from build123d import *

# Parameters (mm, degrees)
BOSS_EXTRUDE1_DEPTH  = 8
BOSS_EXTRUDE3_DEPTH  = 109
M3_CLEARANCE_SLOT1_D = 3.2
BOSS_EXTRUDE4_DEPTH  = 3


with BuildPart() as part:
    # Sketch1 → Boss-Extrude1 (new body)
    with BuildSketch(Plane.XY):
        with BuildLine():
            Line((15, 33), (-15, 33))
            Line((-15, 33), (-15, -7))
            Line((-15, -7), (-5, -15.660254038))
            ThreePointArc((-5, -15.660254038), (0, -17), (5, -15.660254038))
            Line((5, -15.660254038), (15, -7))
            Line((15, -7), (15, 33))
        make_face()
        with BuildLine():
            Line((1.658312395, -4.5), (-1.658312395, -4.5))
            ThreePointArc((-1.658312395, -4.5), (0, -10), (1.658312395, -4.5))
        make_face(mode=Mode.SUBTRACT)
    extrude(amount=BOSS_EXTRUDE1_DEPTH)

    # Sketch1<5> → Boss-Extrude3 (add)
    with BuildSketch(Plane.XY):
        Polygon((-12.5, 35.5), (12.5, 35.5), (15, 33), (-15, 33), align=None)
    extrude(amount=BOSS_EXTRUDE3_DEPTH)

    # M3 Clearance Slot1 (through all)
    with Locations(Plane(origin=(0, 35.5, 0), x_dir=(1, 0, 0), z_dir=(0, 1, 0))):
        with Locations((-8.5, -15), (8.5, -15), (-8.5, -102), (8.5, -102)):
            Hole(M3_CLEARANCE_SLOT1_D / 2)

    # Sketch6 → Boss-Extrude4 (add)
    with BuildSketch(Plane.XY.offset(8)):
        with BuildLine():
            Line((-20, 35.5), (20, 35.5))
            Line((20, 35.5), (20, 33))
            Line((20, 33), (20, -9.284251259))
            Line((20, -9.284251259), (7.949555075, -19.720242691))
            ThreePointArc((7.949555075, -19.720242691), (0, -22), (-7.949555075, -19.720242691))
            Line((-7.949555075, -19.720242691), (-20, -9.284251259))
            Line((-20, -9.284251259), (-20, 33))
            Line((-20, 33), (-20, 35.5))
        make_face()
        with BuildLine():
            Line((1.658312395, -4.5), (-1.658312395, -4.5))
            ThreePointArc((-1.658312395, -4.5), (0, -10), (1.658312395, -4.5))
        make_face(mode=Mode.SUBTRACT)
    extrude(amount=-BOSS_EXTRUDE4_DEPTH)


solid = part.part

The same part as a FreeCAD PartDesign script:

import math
import FreeCAD as App
import Part
import Sketcher


def add_polygon(sketch, points):
    """Adds a closed chain of lines whose ends are joined by coincident constraints."""
    first, n = sketch.GeometryCount, len(points)
    for a, b in zip(points, points[1:] + points[:1]):
        sketch.addGeometry(Part.LineSegment(App.Vector(*a, 0), App.Vector(*b, 0)), False)
    for i in range(n):
        sketch.addConstraint(Sketcher.Constraint("Coincident", first + i, 2, first + (i + 1) % n, 1))

doc = App.newDocument("Part")
body = doc.addObject("PartDesign::Body", "Body")

sketch1 = body.newObject("Sketcher::SketchObject", "Sketch")
sketch1.AttachmentSupport = (doc.getObject("XY_Plane"), [""])
sketch1.MapMode = "FlatFace"
sketch1.addGeometry([
    Part.LineSegment(App.Vector(15, 33, 0), App.Vector(-15, 33, 0)),
    Part.LineSegment(App.Vector(-15, 33, 0), App.Vector(-15, -7, 0)),
    Part.LineSegment(App.Vector(-15, -7, 0), App.Vector(-5, -15.7, 0)),
    Part.ArcOfCircle(Part.Circle(App.Vector(0, -7, 0), App.Vector(0, 0, 1), 10), math.radians(-120), math.radians(-60)),
    Part.LineSegment(App.Vector(5, -15.7, 0), App.Vector(15, -7, 0)),
    Part.LineSegment(App.Vector(15, -7, 0), App.Vector(15, 33, 0)),
    Part.LineSegment(App.Vector(-1.7, -4.5, 0), App.Vector(1.7, -4.5, 0)),
    Part.ArcOfCircle(Part.Circle(App.Vector(0, -7, 0), App.Vector(0, 0, 1), 3), math.radians(124), math.radians(416)),
], False)
sketch1.addConstraint([
    Sketcher.Constraint("Coincident", 0, 2, 1, 1),
    Sketcher.Constraint("Coincident", 1, 2, 2, 1),
    Sketcher.Constraint("Coincident", 2, 2, 3, 1),
    Sketcher.Constraint("Coincident", 3, 2, 4, 1),
    Sketcher.Constraint("Coincident", 4, 2, 5, 1),
    Sketcher.Constraint("Coincident", 5, 2, 0, 1),
    Sketcher.Constraint("Coincident", 6, 1, 7, 1),
    Sketcher.Constraint("Coincident", 7, 2, 6, 2),
    Sketcher.Constraint("Horizontal", 0),
    Sketcher.Constraint("Vertical", 1),
    Sketcher.Constraint("Vertical", 5),
    Sketcher.Constraint("Horizontal", 6),
    Sketcher.Constraint("Coincident", 7, 3, 3, 3),
    Sketcher.Constraint("Symmetric", 2, 2, 3, 2, -2),
    Sketcher.Constraint("Symmetric", 1, 2, 4, 2, -2),
    Sketcher.Constraint("Horizontal", 7, 3, 1, 2),
    Sketcher.Constraint("Radius", 3, 10.0),
    Sketcher.Constraint("Radius", 7, 3.0),
    Sketcher.Constraint("DistanceX", 0, 2, 0, 1, 30.0),
    Sketcher.Constraint("DistanceY", 1, 2, 1, 1, 40.0),
    Sketcher.Constraint("DistanceY", 3, 3, -1, 1, 7.0),
    Sketcher.Constraint("DistanceX", 2, 2, -1, 1, 5.0),
    Sketcher.Constraint("DistanceY", 6, 1, -1, 1, 4.5),
])
pad1 = body.newObject("PartDesign::Pad", "Pad")
pad1.Profile = sketch1
pad1.Length = 8

sketch2 = body.newObject("Sketcher::SketchObject", "Sketch001")
sketch2.AttachmentSupport = (doc.getObject("XY_Plane"), [""])
sketch2.MapMode = "FlatFace"
add_polygon(sketch2, [(12.5, 35.5), (-12.5, 35.5), (-15, 33), (15, 33)])
sketch2.addConstraint([
    Sketcher.Constraint("Horizontal", 0),
    Sketcher.Constraint("Horizontal", 2),
    Sketcher.Constraint("Perpendicular", 1, 3),
    Sketcher.Constraint("Equal", 1, 3),
    Sketcher.Constraint("DistanceX", 0, 2, 0, 1, 25.0),
    Sketcher.Constraint("DistanceX", 2, 1, 2, 2, 30.0),
    Sketcher.Constraint("DistanceX", 1, 2, -1, 1, 15.0),
    Sketcher.Constraint("DistanceY", -1, 1, 1, 2, 33.0),
])
pad2 = body.newObject("PartDesign::Pad", "Pad001")
pad2.Profile = sketch2
pad2.Length = 109

sketch3 = body.newObject("Sketcher::SketchObject", "Sketch002")
sketch3.AttachmentSupport = (doc.getObject("XZ_Plane"), [""])
sketch3.MapMode = "FlatFace"
sketch3.AttachmentOffset = App.Placement(App.Vector(0, 0, -35.5), App.Rotation())
sketch3.addGeometry([
    Part.Circle(App.Vector(-8.5, 15, 0), App.Vector(0, 0, 1), 1.6),
    Part.Circle(App.Vector(8.5, 15, 0), App.Vector(0, 0, 1), 1.6),
    Part.Circle(App.Vector(-8.5, 102, 0), App.Vector(0, 0, 1), 1.6),
    Part.Circle(App.Vector(8.5, 102, 0), App.Vector(0, 0, 1), 1.6),
], False)
sketch3.addConstraint([
    Sketcher.Constraint("Equal", 0, 1),
    Sketcher.Constraint("Equal", 1, 2),
    Sketcher.Constraint("Equal", 2, 3),
    Sketcher.Constraint("Symmetric", 0, 3, 1, 3, -2),
    Sketcher.Constraint("Symmetric", 2, 3, 3, 3, -2),
    Sketcher.Constraint("Vertical", 0, 3, 2, 3),
    Sketcher.Constraint("Diameter", 0, 3.2),
    Sketcher.Constraint("DistanceY", -1, 1, 0, 3, 15.0),
    Sketcher.Constraint("DistanceY", -1, 1, 2, 3, 102.0),
    Sketcher.Constraint("DistanceX", 0, 3, 1, 3, 17.0),
])
doc.recompute()
hole = body.newObject("PartDesign::Hole", "Hole")
hole.Profile = sketch3
hole.ThreadType = "None"
hole.Diameter = 3.2
hole.DepthType = "ThroughAll"
hole.Reversed = True

sketch4 = body.newObject("Sketcher::SketchObject", "Sketch003")
sketch4.AttachmentSupport = (doc.getObject("XY_Plane"), [""])
sketch4.MapMode = "FlatFace"
sketch4.AttachmentOffset = App.Placement(App.Vector(0, 0, 8), App.Rotation())
sketch4.addGeometry([
    Part.LineSegment(App.Vector(20, 35.5, 0), App.Vector(-20, 35.5, 0)),
    Part.LineSegment(App.Vector(-20, 35.5, 0), App.Vector(-20, -9.3, 0)),
    Part.LineSegment(App.Vector(-20, -9.3, 0), App.Vector(-7.9, -19.7, 0)),
    Part.ArcOfCircle(Part.Circle(App.Vector(0, -7, 0), App.Vector(0, 0, 1), 15), math.radians(-122), math.radians(-58)),
    Part.LineSegment(App.Vector(7.9, -19.7, 0), App.Vector(20, -9.3, 0)),
    Part.LineSegment(App.Vector(20, -9.3, 0), App.Vector(20, 35.5, 0)),
    Part.ArcOfCircle(Part.Circle(App.Vector(0, -7, 0), App.Vector(0, 0, 1), 3), math.radians(124), math.radians(416)),
    Part.LineSegment(App.Vector(-1.7, -4.5, 0), App.Vector(1.7, -4.5, 0)),
], False)
sketch4.addConstraint([
    Sketcher.Constraint("Coincident", 0, 2, 1, 1),
    Sketcher.Constraint("Coincident", 1, 2, 2, 1),
    Sketcher.Constraint("Coincident", 2, 2, 3, 1),
    Sketcher.Constraint("Coincident", 3, 2, 4, 1),
    Sketcher.Constraint("Coincident", 4, 2, 5, 1),
    Sketcher.Constraint("Coincident", 5, 2, 0, 1),
    Sketcher.Constraint("Coincident", 6, 1, 7, 1),
    Sketcher.Constraint("Coincident", 7, 2, 6, 2),
    Sketcher.Constraint("Horizontal", 0),
    Sketcher.Constraint("Vertical", 1),
    Sketcher.Constraint("Vertical", 5),
    Sketcher.Constraint("Horizontal", 7),
    Sketcher.Constraint("Coincident", 6, 3, 3, 3),
    Sketcher.Constraint("Symmetric", 2, 2, 3, 2, -2),
    Sketcher.Constraint("Symmetric", 1, 2, 4, 2, -2),
    Sketcher.Constraint("Radius", 3, 15.0),
    Sketcher.Constraint("Radius", 6, 3.0),
    Sketcher.Constraint("DistanceX", 0, 2, 0, 1, 40.0),
    Sketcher.Constraint("DistanceY", 3, 3, -1, 1, 7.0),
    Sketcher.Constraint("DistanceY", -1, 1, 0, 2, 35.5),
    Sketcher.Constraint("DistanceY", 6, 1, -1, 1, 4.5),
    Sketcher.Constraint("DistanceY", 1, 2, 1, 1, 44.784251),
    Sketcher.Constraint("Distance", 2, 15.94124),
])
pad3 = body.newObject("PartDesign::Pad", "Pad002")
pad3.Profile = sketch4
pad3.Length = 3
pad3.Reversed = True

doc.recompute()
